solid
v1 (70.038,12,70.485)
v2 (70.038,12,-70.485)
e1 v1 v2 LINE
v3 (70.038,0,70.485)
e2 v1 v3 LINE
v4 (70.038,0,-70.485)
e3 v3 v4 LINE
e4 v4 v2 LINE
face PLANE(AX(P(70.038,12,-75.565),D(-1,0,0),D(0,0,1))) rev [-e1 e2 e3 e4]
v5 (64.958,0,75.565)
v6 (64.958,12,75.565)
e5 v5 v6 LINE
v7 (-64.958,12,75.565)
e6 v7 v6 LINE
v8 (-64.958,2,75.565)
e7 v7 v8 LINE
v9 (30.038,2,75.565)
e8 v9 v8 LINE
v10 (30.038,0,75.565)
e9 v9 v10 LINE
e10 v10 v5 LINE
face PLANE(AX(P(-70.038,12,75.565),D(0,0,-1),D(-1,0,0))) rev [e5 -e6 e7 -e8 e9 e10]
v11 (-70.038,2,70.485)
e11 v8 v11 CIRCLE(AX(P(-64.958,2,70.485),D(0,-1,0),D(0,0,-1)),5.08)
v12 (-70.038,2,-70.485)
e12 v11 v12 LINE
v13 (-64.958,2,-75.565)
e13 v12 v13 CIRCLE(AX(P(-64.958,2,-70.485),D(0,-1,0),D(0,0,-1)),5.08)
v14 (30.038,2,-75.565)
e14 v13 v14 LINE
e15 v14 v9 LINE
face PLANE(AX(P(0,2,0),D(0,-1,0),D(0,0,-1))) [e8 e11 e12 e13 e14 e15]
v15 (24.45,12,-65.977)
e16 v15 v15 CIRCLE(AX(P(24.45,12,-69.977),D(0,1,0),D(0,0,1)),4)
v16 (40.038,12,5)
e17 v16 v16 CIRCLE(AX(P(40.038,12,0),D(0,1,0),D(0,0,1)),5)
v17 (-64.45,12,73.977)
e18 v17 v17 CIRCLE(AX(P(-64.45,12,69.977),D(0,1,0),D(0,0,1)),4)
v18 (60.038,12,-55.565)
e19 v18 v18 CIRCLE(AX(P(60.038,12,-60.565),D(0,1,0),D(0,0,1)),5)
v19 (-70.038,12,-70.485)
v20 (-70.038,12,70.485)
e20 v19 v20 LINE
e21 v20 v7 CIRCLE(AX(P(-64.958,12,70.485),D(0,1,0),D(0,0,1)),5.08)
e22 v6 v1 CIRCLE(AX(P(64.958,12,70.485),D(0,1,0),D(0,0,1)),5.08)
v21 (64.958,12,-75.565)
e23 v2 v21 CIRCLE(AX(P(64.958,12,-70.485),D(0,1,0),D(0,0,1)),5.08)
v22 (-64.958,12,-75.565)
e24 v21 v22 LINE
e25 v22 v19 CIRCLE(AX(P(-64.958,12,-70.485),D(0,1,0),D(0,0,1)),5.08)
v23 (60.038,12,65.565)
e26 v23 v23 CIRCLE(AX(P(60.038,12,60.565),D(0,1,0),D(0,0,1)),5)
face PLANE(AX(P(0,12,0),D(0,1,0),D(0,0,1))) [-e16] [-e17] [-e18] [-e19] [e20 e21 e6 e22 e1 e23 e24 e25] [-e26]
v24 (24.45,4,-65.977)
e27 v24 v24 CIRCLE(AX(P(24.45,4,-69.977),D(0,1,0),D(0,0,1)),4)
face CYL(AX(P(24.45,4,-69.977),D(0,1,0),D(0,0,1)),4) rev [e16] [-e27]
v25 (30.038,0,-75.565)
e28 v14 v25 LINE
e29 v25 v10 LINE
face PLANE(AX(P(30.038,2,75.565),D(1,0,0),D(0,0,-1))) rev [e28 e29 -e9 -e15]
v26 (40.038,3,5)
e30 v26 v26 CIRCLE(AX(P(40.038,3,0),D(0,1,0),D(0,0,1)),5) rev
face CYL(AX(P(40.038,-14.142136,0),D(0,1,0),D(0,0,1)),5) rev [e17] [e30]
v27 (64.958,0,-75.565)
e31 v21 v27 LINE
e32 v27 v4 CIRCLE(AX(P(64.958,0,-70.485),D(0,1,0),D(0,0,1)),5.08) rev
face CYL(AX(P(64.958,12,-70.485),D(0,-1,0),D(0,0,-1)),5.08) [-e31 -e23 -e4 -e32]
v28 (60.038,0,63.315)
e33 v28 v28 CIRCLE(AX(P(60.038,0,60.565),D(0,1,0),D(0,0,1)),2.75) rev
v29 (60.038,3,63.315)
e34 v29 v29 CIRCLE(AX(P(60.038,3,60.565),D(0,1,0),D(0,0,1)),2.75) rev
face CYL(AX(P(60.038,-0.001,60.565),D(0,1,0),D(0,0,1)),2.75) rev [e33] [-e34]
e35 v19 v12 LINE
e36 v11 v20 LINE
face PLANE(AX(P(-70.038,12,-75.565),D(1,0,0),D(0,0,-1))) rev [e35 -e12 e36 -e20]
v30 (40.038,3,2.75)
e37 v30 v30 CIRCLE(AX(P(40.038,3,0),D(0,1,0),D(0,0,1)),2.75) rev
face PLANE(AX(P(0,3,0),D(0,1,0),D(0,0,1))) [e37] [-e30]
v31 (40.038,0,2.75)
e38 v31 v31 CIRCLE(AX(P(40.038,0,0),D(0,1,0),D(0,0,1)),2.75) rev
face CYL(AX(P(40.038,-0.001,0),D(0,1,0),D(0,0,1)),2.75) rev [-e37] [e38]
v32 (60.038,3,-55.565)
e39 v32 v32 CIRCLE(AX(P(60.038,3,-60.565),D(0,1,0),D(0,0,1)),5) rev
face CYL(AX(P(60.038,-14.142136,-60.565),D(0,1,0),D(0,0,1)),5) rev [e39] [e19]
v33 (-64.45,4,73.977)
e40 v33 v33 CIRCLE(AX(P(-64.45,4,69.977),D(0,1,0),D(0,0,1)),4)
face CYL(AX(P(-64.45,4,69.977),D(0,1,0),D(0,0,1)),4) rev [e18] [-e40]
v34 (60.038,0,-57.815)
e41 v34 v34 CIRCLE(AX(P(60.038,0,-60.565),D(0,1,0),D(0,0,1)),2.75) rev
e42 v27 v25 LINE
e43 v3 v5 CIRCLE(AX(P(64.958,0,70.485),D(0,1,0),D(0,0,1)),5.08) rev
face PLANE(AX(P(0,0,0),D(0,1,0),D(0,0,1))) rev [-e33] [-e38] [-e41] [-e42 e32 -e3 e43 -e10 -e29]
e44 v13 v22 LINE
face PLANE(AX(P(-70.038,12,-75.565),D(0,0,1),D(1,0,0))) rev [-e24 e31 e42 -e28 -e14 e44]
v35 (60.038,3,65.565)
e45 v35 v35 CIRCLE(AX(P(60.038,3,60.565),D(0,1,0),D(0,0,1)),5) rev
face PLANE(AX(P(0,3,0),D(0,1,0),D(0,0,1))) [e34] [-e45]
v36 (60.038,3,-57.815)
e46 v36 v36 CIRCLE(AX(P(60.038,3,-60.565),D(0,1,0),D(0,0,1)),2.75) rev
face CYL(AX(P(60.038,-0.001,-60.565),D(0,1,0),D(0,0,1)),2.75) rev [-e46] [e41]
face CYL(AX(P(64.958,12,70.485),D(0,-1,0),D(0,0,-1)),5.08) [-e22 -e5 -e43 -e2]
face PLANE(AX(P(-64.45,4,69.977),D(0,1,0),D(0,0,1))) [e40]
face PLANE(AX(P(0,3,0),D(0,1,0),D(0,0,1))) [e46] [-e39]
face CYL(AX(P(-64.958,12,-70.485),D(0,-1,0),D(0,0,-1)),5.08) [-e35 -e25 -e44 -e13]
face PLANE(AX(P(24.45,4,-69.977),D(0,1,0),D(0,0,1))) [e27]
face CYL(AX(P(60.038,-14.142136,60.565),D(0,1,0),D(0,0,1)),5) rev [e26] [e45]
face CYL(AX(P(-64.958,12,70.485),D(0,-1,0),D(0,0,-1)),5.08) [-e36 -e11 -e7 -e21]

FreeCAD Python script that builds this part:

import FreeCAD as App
import Part
import Sketcher


def edges_at(feature, points):
    """Names of the edges that pass closest to the given points."""
    edges = feature.Shape.Edges
    near = lambda p: min(range(len(edges)), key=lambda i: edges[i].distToShape(Part.Vertex(*p))[0])
    return sorted({f"Edge{near(p) + 1}" for p in points})


def add_polygon(sketch, points):
    """Adds a closed chain of lines whose ends are joined by coincident constraints."""
    first, n = sketch.GeometryCount, len(points)
    for a, b in zip(points, points[1:] + points[:1]):
        sketch.addGeometry(Part.LineSegment(App.Vector(*a, 0), App.Vector(*b, 0)), False)
    for i in range(n):
        sketch.addConstraint(Sketcher.Constraint("Coincident", first + i, 2, first + (i + 1) % n, 1))

doc = App.newDocument("Part")
body = doc.addObject("PartDesign::Body", "Body")

sketch1 = body.newObject("Sketcher::SketchObject", "Sketch")
sketch1.AttachmentSupport = (doc.getObject("XZ_Plane"), [""])
sketch1.MapMode = "FlatFace"
add_polygon(sketch1, [(-70.038, -75.565), (-70.038, 75.565), (70.038, 75.565), (70.038, -75.565)])
sketch1.addConstraint(Sketcher.Constraint("Vertical", 0))
sketch1.addConstraint(Sketcher.Constraint("Horizontal", 1))
sketch1.addConstraint(Sketcher.Constraint("Vertical", 2))
sketch1.addConstraint(Sketcher.Constraint("Horizontal", 3))
sketch1.addConstraint(Sketcher.Constraint("Symmetric", 0, 2, 2, 2, -1, 1))
sketch1.addConstraint(Sketcher.Constraint("DistanceY", 0, 1, 0, 2, 151.13))
sketch1.addConstraint(Sketcher.Constraint("DistanceX", 1, 1, 1, 2, 140.076))
pad1 = body.newObject("PartDesign::Pad", "Pad")
pad1.Profile = sketch1
pad1.Length = 12
pad1.Reversed = True

sketch2 = body.newObject("Sketcher::SketchObject", "Sketch001")
sketch2.AttachmentSupport = (doc.getObject("XZ_Plane"), [""])
sketch2.MapMode = "FlatFace"
add_polygon(sketch2, [(-70.038, 75.565), (-70.038, -75.565), (30.038, -75.565), (30.038, 75.565)])
sketch2.addConstraint(Sketcher.Constraint("Vertical", 0))
sketch2.addConstraint(Sketcher.Constraint("Horizontal", 1))
sketch2.addConstraint(Sketcher.Constraint("Vertical", 2))
sketch2.addConstraint(Sketcher.Constraint("Horizontal", 3))
sketch2.addConstraint(Sketcher.Constraint("DistanceY", 0, 2, 0, 1, 151.13))
sketch2.addConstraint(Sketcher.Constraint("DistanceX", 1, 1, 1, 2, 100.076))
sketch2.addConstraint(Sketcher.Constraint("DistanceX", 0, 2, -1, 1, 70.038))
sketch2.addConstraint(Sketcher.Constraint("DistanceY", 0, 2, -1, 1, 75.565))
pocket1 = body.newObject("PartDesign::Pocket", "Pocket")
pocket1.Profile = sketch2
pocket1.Length = 2

sketch3 = body.newObject("Sketcher::SketchObject", "Sketch002")
sketch3.AttachmentSupport = (doc.getObject("XZ_Plane"), [""])
sketch3.MapMode = "FlatFace"
sketch3.AttachmentOffset = App.Placement(App.Vector(0, 0, -12), App.Rotation())
sketch3.addGeometry(Part.Circle(App.Vector(24.45, -69.977, 0), App.Vector(0, 0, 1), 4), False)
sketch3.addGeometry(Part.Circle(App.Vector(-64.45, 69.977, 0), App.Vector(0, 0, 1), 4), False)
sketch3.addConstraint(Sketcher.Constraint("Equal", 0, 1))
sketch3.addConstraint(Sketcher.Constraint("Diameter", 0, 8.0))
sketch3.addConstraint(Sketcher.Constraint("DistanceX", 1, 3, 0, 3, 88.9))
sketch3.addConstraint(Sketcher.Constraint("DistanceX", -1, 1, 0, 3, 24.45))
sketch3.addConstraint(Sketcher.Constraint("DistanceY", 0, 3, -1, 1, 69.977))
sketch3.addConstraint(Sketcher.Constraint("DistanceY", -1, 1, 1, 3, 69.977))
pocket2 = body.newObject("PartDesign::Pocket", "Pocket001")
pocket2.Profile = sketch3
pocket2.Length = 8
pocket2.Reversed = True

sketch4 = body.newObject("Sketcher::SketchObject", "Sketch003")
sketch4.AttachmentSupport = (doc.getObject("XZ_Plane"), [""])
sketch4.MapMode = "FlatFace"
sketch4.AttachmentOffset = App.Placement(App.Vector(0, 0, -12), App.Rotation())
sketch4.addGeometry(Part.Circle(App.Vector(40.038, 0, 0), App.Vector(0, 0, 1), 2.75), False)
sketch4.addConstraint(Sketcher.Constraint("PointOnObject", 0, 3, -1))
sketch4.addConstraint(Sketcher.Constraint("Diameter", 0, 5.5))
sketch4.addConstraint(Sketcher.Constraint("DistanceX", -1, 1, 0, 3, 40.038))
pocket3 = body.newObject("PartDesign::Pocket", "Pocket002")
pocket3.Profile = sketch4
pocket3.Type = "UpToFirst"
pocket3.Reversed = True

sketch5 = body.newObject("Sketcher::SketchObject", "Sketch004")
sketch5.AttachmentSupport = (doc.getObject("XZ_Plane"), [""])
sketch5.MapMode = "FlatFace"
sketch5.AttachmentOffset = App.Placement(App.Vector(0, 0, -12), App.Rotation())
sketch5.addGeometry(Part.Circle(App.Vector(60.038, 60.565, 0), App.Vector(0, 0, 1), 2.75), False)
sketch5.addConstraint(Sketcher.Constraint("Diameter", 0, 5.5))
sketch5.addConstraint(Sketcher.Constraint("DistanceX", -1, 1, 0, 3, 60.038))
sketch5.addConstraint(Sketcher.Constraint("DistanceY", -1, 1, 0, 3, 60.565))
pocket4 = body.newObject("PartDesign::Pocket", "Pocket003")
pocket4.Profile = sketch5
pocket4.Type = "UpToFirst"
pocket4.Reversed = True

sketch6 = body.newObject("Sketcher::SketchObject", "Sketch005")
sketch6.AttachmentSupport = (doc.getObject("XZ_Plane"), [""])
sketch6.MapMode = "FlatFace"
sketch6.AttachmentOffset = App.Placement(App.Vector(0, 0, -12), App.Rotation())
sketch6.addGeometry(Part.Circle(App.Vector(60.038, -60.565, 0), App.Vector(0, 0, 1), 2.75), False)
sketch6.addConstraint(Sketcher.Constraint("Diameter", 0, 5.5))
sketch6.addConstraint(Sketcher.Constraint("DistanceX", -1, 1, 0, 3, 60.038))
sketch6.addConstraint(Sketcher.Constraint("DistanceY", 0, 3, -1, 1, 60.565))
pocket5 = body.newObject("PartDesign::Pocket", "Pocket004")
pocket5.Profile = sketch6
pocket5.Type = "UpToFirst"
pocket5.Reversed = True
doc.recompute()

fillet = body.newObject("PartDesign::Fillet", "Fillet")
fillet.Base = (pocket5, edges_at(pocket5, [
    (70.038, 6, 75.565),
    (-70.038, 7, 75.565),
    (-70.038, 7, -75.565),
    (70.038, 6, -75.565),
]))
fillet.Radius = 5.08

sketch7 = body.newObject("Sketcher::SketchObject", "Sketch006")
sketch7.AttachmentSupport = (doc.getObject("XZ_Plane"), [""])
sketch7.MapMode = "FlatFace"
sketch7.AttachmentOffset = App.Placement(App.Vector(0, 0, -12), App.Rotation())
sketch7.addGeometry(Part.Circle(App.Vector(60.038, -60.565, 0), App.Vector(0, 0, 1), 5), False)
sketch7.addGeometry(Part.Circle(App.Vector(40.038, 0, 0), App.Vector(0, 0, 1), 5), False)
sketch7.addGeometry(Part.Circle(App.Vector(60.038, 60.565, 0), App.Vector(0, 0, 1), 5), False)
sketch7.addConstraint(Sketcher.Constraint("Equal", 0, 1))
sketch7.addConstraint(Sketcher.Constraint("Equal", 1, 2))
sketch7.addConstraint(Sketcher.Constraint("Symmetric", 0, 3, 2, 3, -1))
sketch7.addConstraint(Sketcher.Constraint("PointOnObject", 1, 3, -1))
sketch7.addConstraint(Sketcher.Constraint("Diameter", 0, 10.0))
sketch7.addConstraint(Sketcher.Constraint("DistanceX", 1, 3, 0, 3, 20.0))
sketch7.addConstraint(Sketcher.Constraint("DistanceY", 0, 3, 2, 3, 121.13))
sketch7.addConstraint(Sketcher.Constraint("DistanceX", -1, 1, 0, 3, 60.038))
pocket6 = body.newObject("PartDesign::Pocket", "Pocket005")
pocket6.Profile = sketch7
pocket6.Length = 9
pocket6.Reversed = True

doc.recompute()
